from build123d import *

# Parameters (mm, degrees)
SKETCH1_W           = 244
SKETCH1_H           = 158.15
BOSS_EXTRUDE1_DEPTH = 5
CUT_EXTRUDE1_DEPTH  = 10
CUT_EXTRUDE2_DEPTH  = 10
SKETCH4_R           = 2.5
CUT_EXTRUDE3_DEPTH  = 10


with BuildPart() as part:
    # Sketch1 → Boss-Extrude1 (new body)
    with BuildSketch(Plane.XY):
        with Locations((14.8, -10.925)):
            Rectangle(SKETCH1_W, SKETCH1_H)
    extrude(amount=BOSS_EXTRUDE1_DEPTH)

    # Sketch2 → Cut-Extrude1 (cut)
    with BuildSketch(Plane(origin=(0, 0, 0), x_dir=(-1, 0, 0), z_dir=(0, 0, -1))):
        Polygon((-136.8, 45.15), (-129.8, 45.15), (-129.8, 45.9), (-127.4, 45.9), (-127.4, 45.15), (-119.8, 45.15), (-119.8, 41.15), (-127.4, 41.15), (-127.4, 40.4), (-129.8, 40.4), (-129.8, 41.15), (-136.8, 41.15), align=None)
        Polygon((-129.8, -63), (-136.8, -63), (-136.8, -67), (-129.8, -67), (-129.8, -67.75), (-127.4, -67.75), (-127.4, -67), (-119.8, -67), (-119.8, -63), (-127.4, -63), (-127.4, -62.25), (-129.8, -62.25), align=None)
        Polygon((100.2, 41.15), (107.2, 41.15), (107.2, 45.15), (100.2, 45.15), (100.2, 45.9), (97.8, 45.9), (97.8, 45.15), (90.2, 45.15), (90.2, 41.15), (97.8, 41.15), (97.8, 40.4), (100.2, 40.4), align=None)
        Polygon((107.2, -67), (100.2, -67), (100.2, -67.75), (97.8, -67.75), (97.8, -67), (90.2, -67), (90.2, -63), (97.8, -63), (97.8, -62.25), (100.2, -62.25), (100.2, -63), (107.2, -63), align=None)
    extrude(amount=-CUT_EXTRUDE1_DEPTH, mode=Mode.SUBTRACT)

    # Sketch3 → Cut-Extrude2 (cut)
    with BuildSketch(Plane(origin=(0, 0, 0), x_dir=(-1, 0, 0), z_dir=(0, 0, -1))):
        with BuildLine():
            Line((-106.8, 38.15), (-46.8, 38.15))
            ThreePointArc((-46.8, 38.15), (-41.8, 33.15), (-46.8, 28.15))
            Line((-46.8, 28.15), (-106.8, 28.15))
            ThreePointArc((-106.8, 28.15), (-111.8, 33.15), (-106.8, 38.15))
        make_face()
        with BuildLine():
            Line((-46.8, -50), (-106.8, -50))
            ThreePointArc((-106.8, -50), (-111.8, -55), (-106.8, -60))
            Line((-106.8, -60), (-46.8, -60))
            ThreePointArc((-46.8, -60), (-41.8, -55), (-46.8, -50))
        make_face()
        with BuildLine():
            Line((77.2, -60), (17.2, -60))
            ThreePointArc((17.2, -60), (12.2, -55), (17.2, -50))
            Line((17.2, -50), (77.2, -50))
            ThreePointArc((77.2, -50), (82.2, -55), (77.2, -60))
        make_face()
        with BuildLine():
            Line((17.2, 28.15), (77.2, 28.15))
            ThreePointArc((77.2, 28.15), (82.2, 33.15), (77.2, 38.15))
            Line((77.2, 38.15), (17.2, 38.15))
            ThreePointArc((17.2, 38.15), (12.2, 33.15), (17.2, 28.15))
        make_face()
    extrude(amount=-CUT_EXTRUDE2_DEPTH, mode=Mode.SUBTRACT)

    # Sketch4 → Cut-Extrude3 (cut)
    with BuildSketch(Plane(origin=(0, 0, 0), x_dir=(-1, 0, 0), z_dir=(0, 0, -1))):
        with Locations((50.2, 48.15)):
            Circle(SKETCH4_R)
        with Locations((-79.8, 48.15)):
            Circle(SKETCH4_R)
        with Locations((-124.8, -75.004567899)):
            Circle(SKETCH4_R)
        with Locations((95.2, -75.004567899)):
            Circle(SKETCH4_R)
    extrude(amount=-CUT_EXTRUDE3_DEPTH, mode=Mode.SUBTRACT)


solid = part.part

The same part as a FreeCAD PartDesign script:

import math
import FreeCAD as App
import Part
import Sketcher
Q = App.Units.Quantity

doc = App.newDocument("Part")
body = doc.addObject("PartDesign::Body", "Body")

sketch1 = body.newObject("Sketcher::SketchObject", "Sketch")
sketch1.AttachmentSupport = (doc.getObject("XY_Plane"), [""])
sketch1.MapMode = "FlatFace"
sketch1.addGeometry([
    Part.LineSegment(App.Vector(-107, 68, 0), App.Vector(-107, -90, 0)),
    Part.LineSegment(App.Vector(-107, -90, 0), App.Vector(137, -90, 0)),
    Part.LineSegment(App.Vector(137, -90, 0), App.Vector(137, 68, 0)),
    Part.LineSegment(App.Vector(137, 68, 0), App.Vector(-107, 68, 0)),
], False)
sketch1.addConstraint([
    Sketcher.Constraint("Coincident", 0, 2, 1, 1),
    Sketcher.Constraint("Coincident", 1, 2, 2, 1),
    Sketcher.Constraint("Coincident", 2, 2, 3, 1),
    Sketcher.Constraint("Coincident", 3, 2, 0, 1),
    Sketcher.Constraint("Vertical", 0),
    Sketcher.Constraint("Horizontal", 1),
    Sketcher.Constraint("Vertical", 2),
    Sketcher.Constraint("Horizontal", 3),
    Sketcher.Constraint("DistanceX", 1, 1, 1, 2, Q("244 mm")),
    Sketcher.Constraint("DistanceY", 0, 2, -1, 1, Q("90 mm")),
    Sketcher.Constraint("DistanceY", 0, 2, 0, 1, Q("158.15 mm")),
    Sketcher.Constraint("DistanceX", 0, 2, -1, 1, Q("107.2 mm")),
])
pad1 = body.newObject("PartDesign::Pad", "Pad")
pad1.Profile = sketch1
pad1.Length = 5

sketch2 = body.newObject("Sketcher::SketchObject", "Sketch001")
sketch2.AttachmentSupport = (doc.getObject("XY_Plane"), [""])
sketch2.MapMode = "FlatFace"
sketch2.addGeometry([
    Part.LineSegment(App.Vector(129.8, 45.1, 0), App.Vector(136.8, 45.1, 0)),
    Part.LineSegment(App.Vector(136.8, 45.1, 0), App.Vector(136.8, 41.1, 0)),
    Part.LineSegment(App.Vector(136.8, 41.1, 0), App.Vector(129.8, 41.1, 0)),
    Part.LineSegment(App.Vector(129.8, 41.1, 0), App.Vector(129.8, 40.4, 0)),
    Part.LineSegment(App.Vector(129.8, 40.4, 0), App.Vector(127.4, 40.4, 0)),
    Part.LineSegment(App.Vector(127.4, 40.4, 0), App.Vector(127.4, 41.1, 0)),
    Part.LineSegment(App.Vector(127.4, 41.1, 0), App.Vector(119.8, 41.1, 0)),
    Part.LineSegment(App.Vector(119.8, 41.1, 0), App.Vector(119.8, 45.1, 0)),
    Part.LineSegment(App.Vector(119.8, 45.1, 0), App.Vector(127.4, 45.1, 0)),
    Part.LineSegment(App.Vector(127.4, 45.1, 0), App.Vector(127.4, 45.9, 0)),
    Part.LineSegment(App.Vector(127.4, 45.9, 0), App.Vector(129.8, 45.9, 0)),
    Part.LineSegment(App.Vector(129.8, 45.9, 0), App.Vector(129.8, 45.1, 0)),
    Part.LineSegment(App.Vector(129.8, -63, 0), App.Vector(136.8, -63, 0)),
    Part.LineSegment(App.Vector(136.8, -63, 0), App.Vector(136.8, -67, 0)),
    Part.LineSegment(App.Vector(136.8, -67, 0), App.Vector(129.8, -67, 0)),
    Part.LineSegment(App.Vector(129.8, -67, 0), App.Vector(129.8, -67.8, 0)),
    Part.LineSegment(App.Vector(129.8, -67.8, 0), App.Vector(127.4, -67.8, 0)),
    Part.LineSegment(App.Vector(127.4, -67.8, 0), App.Vector(127.4, -67, 0)),
    Part.LineSegment(App.Vector(127.4, -67, 0), App.Vector(119.8, -67, 0)),
    Part.LineSegment(App.Vector(119.8, -67, 0), App.Vector(119.8, -63, 0)),
    Part.LineSegment(App.Vector(119.8, -63, 0), App.Vector(127.4, -63, 0)),
    Part.LineSegment(App.Vector(127.4, -63, 0), App.Vector(127.4, -62.2, 0)),
    Part.LineSegment(App.Vector(127.4, -62.2, 0), App.Vector(129.8, -62.2, 0)),
    Part.LineSegment(App.Vector(129.8, -62.2, 0), App.Vector(129.8, -63, 0)),
    Part.LineSegment(App.Vector(-100.2, 41.1, 0), App.Vector(-107.2, 41.1, 0)),
    Part.LineSegment(App.Vector(-107.2, 41.1, 0), App.Vector(-107.2, 45.1, 0)),
    Part.LineSegment(App.Vector(-107.2, 45.1, 0), App.Vector(-100.2, 45.1, 0)),
    Part.LineSegment(App.Vector(-100.2, 45.1, 0), App.Vector(-100.2, 45.9, 0)),
    Part.LineSegment(App.Vector(-100.2, 45.9, 0), App.Vector(-97.8, 45.9, 0)),
    Part.LineSegment(App.Vector(-97.8, 45.9, 0), App.Vector(-97.8, 45.1, 0)),
    Part.LineSegment(App.Vector(-97.8, 45.1, 0), App.Vector(-90.2, 45.1, 0)),
    Part.LineSegment(App.Vector(-90.2, 45.1, 0), App.Vector(-90.2, 41.1, 0)),
    Part.LineSegment(App.Vector(-90.2, 41.1, 0), App.Vector(-97.8, 41.1, 0)),
    Part.LineSegment(App.Vector(-97.8, 41.1, 0), App.Vector(-97.8, 40.4, 0)),
    Part.LineSegment(App.Vector(-97.8, 40.4, 0), App.Vector(-100.2, 40.4, 0)),
    Part.LineSegment(App.Vector(-100.2, 40.4, 0), App.Vector(-100.2, 41.1, 0)),
    Part.LineSegment(App.Vector(-100.2, -67, 0), App.Vector(-107.2, -67, 0)),
    Part.LineSegment(App.Vector(-107.2, -67, 0), App.Vector(-107.2, -63, 0)),
    Part.LineSegment(App.Vector(-107.2, -63, 0), App.Vector(-100.2, -63, 0)),
    Part.LineSegment(App.Vector(-100.2, -63, 0), App.Vector(-100.2, -62.2, 0)),
    Part.LineSegment(App.Vector(-100.2, -62.2, 0), App.Vector(-97.8, -62.2, 0)),
    Part.LineSegment(App.Vector(-97.8, -62.2, 0), App.Vector(-97.8, -63, 0)),
    Part.LineSegment(App.Vector(-97.8, -63, 0), App.Vector(-90.2, -63, 0)),
    Part.LineSegment(App.Vector(-90.2, -63, 0), App.Vector(-90.2, -67, 0)),
    Part.LineSegment(App.Vector(-90.2, -67, 0), App.Vector(-97.8, -67, 0)),
    Part.LineSegment(App.Vector(-97.8, -67, 0), App.Vector(-97.8, -67.8, 0)),
    Part.LineSegment(App.Vector(-97.8, -67.8, 0), App.Vector(-100.2, -67.8, 0)),
    Part.LineSegment(App.Vector(-100.2, -67.8, 0), App.Vector(-100.2, -67, 0)),
], False)
sketch2.addConstraint([
    Sketcher.Constraint("Coincident", 0, 2, 1, 1),
    Sketcher.Constraint("Coincident", 1, 2, 2, 1),
    Sketcher.Constraint("Coincident", 2, 2, 3, 1),
    Sketcher.Constraint("Coincident", 3, 2, 4, 1),
    Sketcher.Constraint("Coincident", 4, 2, 5, 1),
    Sketcher.Constraint("Coincident", 5, 2, 6, 1),
    Sketcher.Constraint("Coincident", 6, 2, 7, 1),
    Sketcher.Constraint("Coincident", 7, 2, 8, 1),
    Sketcher.Constraint("Coincident", 8, 2, 9, 1),
    Sketcher.Constraint("Coincident", 9, 2, 10, 1),
    Sketcher.Constraint("Coincident", 10, 2, 11, 1),
    Sketcher.Constraint("Coincident", 11, 2, 0, 1),
    Sketcher.Constraint("Coincident", 12, 2, 13, 1),
    Sketcher.Constraint("Coincident", 13, 2, 14, 1),
    Sketcher.Constraint("Coincident", 14, 2, 15, 1),
    Sketcher.Constraint("Coincident", 15, 2, 16, 1),
    Sketcher.Constraint("Coincident", 16, 2, 17, 1),
    Sketcher.Constraint("Coincident", 17, 2, 18, 1),
    Sketcher.Constraint("Coincident", 18, 2, 19, 1),
    Sketcher.Constraint("Coincident", 19, 2, 20, 1),
    Sketcher.Constraint("Coincident", 20, 2, 21, 1),
    Sketcher.Constraint("Coincident", 21, 2, 22, 1),
    Sketcher.Constraint("Coincident", 22, 2, 23, 1),
    Sketcher.Constraint("Coincident", 23, 2, 12, 1),
    Sketcher.Constraint("Coincident", 24, 2, 25, 1),
    Sketcher.Constraint("Coincident", 25, 2, 26, 1),
    Sketcher.Constraint("Coincident", 26, 2, 27, 1),
    Sketcher.Constraint("Coincident", 27, 2, 28, 1),
    Sketcher.Constraint("Coincident", 28, 2, 29, 1),
    Sketcher.Constraint("Coincident", 29, 2, 30, 1),
    Sketcher.Constraint("Coincident", 30, 2, 31, 1),
    Sketcher.Constraint("Coincident", 31, 2, 32, 1),
    Sketcher.Constraint("Coincident", 32, 2, 33, 1),
    Sketcher.Constraint("Coincident", 33, 2, 34, 1),
    Sketcher.Constraint("Coincident", 34, 2, 35, 1),
    Sketcher.Constraint("Coincident", 35, 2, 24, 1),
    Sketcher.Constraint("Coincident", 36, 2, 37, 1),
    Sketcher.Constraint("Coincident", 37, 2, 38, 1),
    Sketcher.Constraint("Coincident", 38, 2, 39, 1),
    Sketcher.Constraint("Coincident", 39, 2, 40, 1),
    Sketcher.Constraint("Coincident", 40, 2, 41, 1),
    Sketcher.Constraint("Coincident", 41, 2, 42, 1),
    Sketcher.Constraint("Coincident", 42, 2, 43, 1),
    Sketcher.Constraint("Coincident", 43, 2, 44, 1),
    Sketcher.Constraint("Coincident", 44, 2, 45, 1),
    Sketcher.Constraint("Coincident", 45, 2, 46, 1),
    Sketcher.Constraint("Coincident", 46, 2, 47, 1),
    Sketcher.Constraint("Coincident", 47, 2, 36, 1),
    Sketcher.Constraint("Horizontal", 0),
    Sketcher.Constraint("Vertical", 1),
    Sketcher.Constraint("Horizontal", 2),
    Sketcher.Constraint("Vertical", 3),
    Sketcher.Constraint("Horizontal", 4),
    Sketcher.Constraint("Vertical", 5),
    Sketcher.Constraint("Horizontal", 6),
    Sketcher.Constraint("Vertical", 7),
    Sketcher.Constraint("Horizontal", 8),
    Sketcher.Constraint("Vertical", 9),
    Sketcher.Constraint("Horizontal", 10),
    Sketcher.Constraint("Vertical", 11),
    Sketcher.Constraint("Horizontal", 12),
    Sketcher.Constraint("Vertical", 13),
    Sketcher.Constraint("Horizontal", 14),
    Sketcher.Constraint("Vertical", 15),
    Sketcher.Constraint("Horizontal", 16),
    Sketcher.Constraint("Vertical", 17),
    Sketcher.Constraint("Horizontal", 18),
    Sketcher.Constraint("Vertical", 19),
    Sketcher.Constraint("Horizontal", 20),
    Sketcher.Constraint("Vertical", 21),
    Sketcher.Constraint("Horizontal", 22),
    Sketcher.Constraint("Vertical", 23),
    Sketcher.Constraint("Horizontal", 24),
    Sketcher.Constraint("Vertical", 25),
    Sketcher.Constraint("Horizontal", 26),
    Sketcher.Constraint("Vertical", 27),
    Sketcher.Constraint("Horizontal", 28),
    Sketcher.Constraint("Vertical", 29),
    Sketcher.Constraint("Horizontal", 30),
    Sketcher.Constraint("Vertical", 31),
    Sketcher.Constraint("Horizontal", 32),
    Sketcher.Constraint("Vertical", 33),
    Sketcher.Constraint("Horizontal", 34),
    Sketcher.Constraint("Vertical", 35),
    Sketcher.Constraint("Horizontal", 36),
    Sketcher.Constraint("Vertical", 37),
    Sketcher.Constraint("Horizontal", 38),
    Sketcher.Constraint("Vertical", 39),
    Sketcher.Constraint("Horizontal", 40),
    Sketcher.Constraint("Vertical", 41),
    Sketcher.Constraint("Horizontal", 42),
    Sketcher.Constraint("Vertical", 43),
    Sketcher.Constraint("Horizontal", 44),
    Sketcher.Constraint("Vertical", 45),
    Sketcher.Constraint("Horizontal", 46),
    Sketcher.Constraint("Vertical", 47),
    Sketcher.Constraint("Horizontal", 2, 2, 5, 2),
    Sketcher.Constraint("Horizontal", 0, 2, 7, 2),
    Sketcher.Constraint("Horizontal", 14, 2, 17, 2),
    Sketcher.Constraint("Horizontal", 12, 2, 19, 2),
    Sketcher.Constraint("Horizontal", 6, 2, 24, 2),
    Sketcher.Constraint("Horizontal", 11, 2, 25, 2),
    Sketcher.Constraint("Horizontal", 10, 2, 27, 2),
    Sketcher.Constraint("Horizontal", 26, 2, 29, 2),
    Sketcher.Constraint("Horizontal", 24, 2, 31, 2),
    Sketcher.Constraint("Horizontal", 4, 2, 33, 2),
    Sketcher.Constraint("Horizontal", 18, 2, 36, 2),
    Sketcher.Constraint("Horizontal", 23, 2, 37, 2),
    Sketcher.Constraint("Horizontal", 22, 2, 39, 2),
    Sketcher.Constraint("Horizontal", 38, 2, 41, 2),
    Sketcher.Constraint("Horizontal", 36, 2, 43, 2),
    Sketcher.Constraint("Horizontal", 16, 2, 45, 2),
    Sketcher.Constraint("Vertical", 5, 2, 8, 2),
    Sketcher.Constraint("Vertical", 3, 2, 10, 2),
    Sketcher.Constraint("Vertical", 1, 2, 12, 2),
    Sketcher.Constraint("Vertical", 11, 2, 14, 2),
    Sketcher.Constraint("Vertical", 9, 2, 16, 2),
    Sketcher.Constraint("Vertical", 7, 2, 18, 2),
    Sketcher.Constraint("Vertical", 17, 2, 20, 2),
    Sketcher.Constraint("Vertical", 15, 2, 22, 2),
    Sketcher.Constraint("Vertical", 29, 2, 32, 2),
    Sketcher.Constraint("Vertical", 27, 2, 34, 2),
    Sketcher.Constraint("Vertical", 25, 2, 36, 2),
    Sketcher.Constraint("Vertical", 35, 2, 38, 2),
    Sketcher.Constraint("Vertical", 33, 2, 40, 2),
    Sketcher.Constraint("Vertical", 31, 2, 42, 2),
    Sketcher.Constraint("Vertical", 41, 2, 44, 2),
    Sketcher.Constraint("Vertical", 39, 2, 46, 2),
    Sketcher.Constraint("Equal", 14, 24),
    Sketcher.Constraint("Equal", 22, 28),
    Sketcher.Constraint("Equal", 20, 30),
    Sketcher.Constraint("Equal", 5, 9),
    Sketcher.Constraint("Equal", 7, 13),
    Sketcher.Constraint("Equal", 11, 15),
    Sketcher.Constraint("Equal", 17, 21),
    Sketcher.Constraint("DistanceX", 0, 1, 0, 2, Q("7 mm")),
    Sketcher.Constraint("DistanceY", 1, 2, 1, 1, Q("4 mm")),
    Sketcher.Constraint("DistanceX", 4, 2, 4, 1, Q("2.4 mm")),
    Sketcher.Constraint("DistanceX", 6, 2, 6, 1, Q("7.6 mm")),
    Sketcher.Constraint("DistanceY", 12, 2, -1, 1, Q("63 mm")),
    Sketcher.Constraint("DistanceX", 24, 2, 6, 2, Q("227 mm")),
    Sketcher.Constraint("DistanceY", 3, 2, 3, 1, Q("0.75 mm")),
    Sketcher.Constraint("DistanceX", -1, 1, 0, 2, Q("136.8 mm")),
    Sketcher.Constraint("DistanceY", -1, 1, 3, 2, Q("40.4 mm")),
])
pocket1 = body.newObject("PartDesign::Pocket", "Pocket")
pocket1.Profile = sketch2
pocket1.Length = 10
pocket1.Reversed = True

sketch3 = body.newObject("Sketcher::SketchObject", "Sketch002")
sketch3.AttachmentSupport = (doc.getObject("XY_Plane"), [""])
sketch3.MapMode = "FlatFace"
sketch3.addGeometry([
    Part.LineSegment(App.Vector(47, 38, 0), App.Vector(107, 38, 0)),
    Part.ArcOfCircle(Part.Circle(App.Vector(107, 33, 0), App.Vector(0, 0, 1), 5), math.radians(-90), math.radians(90)),
    Part.LineSegment(App.Vector(107, 28, 0), App.Vector(47, 28, 0)),
    Part.ArcOfCircle(Part.Circle(App.Vector(47, 33, 0), App.Vector(0, 0, 1), 5), math.radians(90), math.radians(270)),
    Part.LineSegment(App.Vector(47, -50, 0), App.Vector(107, -50, 0)),
    Part.ArcOfCircle(Part.Circle(App.Vector(107, -55, 0), App.Vector(0, 0, 1), 5), math.radians(-90), math.radians(90)),
    Part.LineSegment(App.Vector(107, -60, 0), App.Vector(47, -60, 0)),
    Part.ArcOfCircle(Part.Circle(App.Vector(47, -55, 0), App.Vector(0, 0, 1), 5), math.radians(90), math.radians(270)),
    Part.LineSegment(App.Vector(-17, -60, 0), App.Vector(-77, -60, 0)),
    Part.ArcOfCircle(Part.Circle(App.Vector(-77, -55, 0), App.Vector(0, 0, 1), 5), math.radians(90), math.radians(270)),
    Part.LineSegment(App.Vector(-77, -50, 0), App.Vector(-17, -50, 0)),
    Part.ArcOfCircle(Part.Circle(App.Vector(-17, -55, 0), App.Vector(0, 0, 1), 5), math.radians(-90), math.radians(90)),
    Part.LineSegment(App.Vector(-17, 28, 0), App.Vector(-77, 28, 0)),
    Part.ArcOfCircle(Part.Circle(App.Vector(-77, 33, 0), App.Vector(0, 0, 1), 5), math.radians(90), math.radians(270)),
    Part.LineSegment(App.Vector(-77, 38, 0), App.Vector(-17, 38, 0)),
    Part.ArcOfCircle(Part.Circle(App.Vector(-17, 33, 0), App.Vector(0, 0, 1), 5), math.radians(-90), math.radians(90)),
], False)
sketch3.addConstraint([
    Sketcher.Constraint("Tangent", 0, 2, 1, 2),
    Sketcher.Constraint("Tangent", 1, 1, 2, 1),
    Sketcher.Constraint("Tangent", 2, 2, 3, 2),
    Sketcher.Constraint("Tangent", 3, 1, 0, 1),
    Sketcher.Constraint("Tangent", 4, 2, 5, 2),
    Sketcher.Constraint("Tangent", 5, 1, 6, 1),
    Sketcher.Constraint("Tangent", 6, 2, 7, 2),
    Sketcher.Constraint("Tangent", 7, 1, 4, 1),
    Sketcher.Constraint("Tangent", 8, 2, 9, 2),
    Sketcher.Constraint("Tangent", 9, 1, 10, 1),
    Sketcher.Constraint("Tangent", 10, 2, 11, 2),
    Sketcher.Constraint("Tangent", 11, 1, 8, 1),
    Sketcher.Constraint("Tangent", 12, 2, 13, 2),
    Sketcher.Constraint("Tangent", 13, 1, 14, 1),
    Sketcher.Constraint("Tangent", 14, 2, 15, 2),
    Sketcher.Constraint("Tangent", 15, 1, 12, 1),
    Sketcher.Constraint("Horizontal", 0),
    Sketcher.Constraint("Horizontal", 2),
    Sketcher.Constraint("Horizontal", 4),
    Sketcher.Constraint("Horizontal", 6),
    Sketcher.Constraint("Horizontal", 8),
    Sketcher.Constraint("Horizontal", 10),
    Sketcher.Constraint("Horizontal", 12),
    Sketcher.Constraint("Horizontal", 14),
    Sketcher.Constraint("Equal", 3, 5),
    Sketcher.Constraint("Equal", 7, 9),
    Sketcher.Constraint("Equal", 11, 13),
    Sketcher.Constraint("Horizontal", 7, 3, 9, 3),
    Sketcher.Constraint("Horizontal", 3, 3, 13, 3),
    Sketcher.Constraint("Vertical", 1, 3, 5, 3),
    Sketcher.Constraint("Vertical", 3, 3, 7, 3),
    Sketcher.Constraint("Vertical", 9, 3, 13, 3),
    Sketcher.Constraint("Vertical", 11, 3, 15, 3),
    Sketcher.Constraint("Equal", 6, 8),
    Sketcher.Constraint("Radius", 1, Q("5 mm")),
    Sketcher.Constraint("DistanceX", 0, 1, 0, 2, Q("60 mm")),
    Sketcher.Constraint("DistanceY", 5, 3, -1, 1, Q("55 mm")),
    Sketcher.Constraint("DistanceX", 9, 3, 7, 3, Q("124 mm")),
    Sketcher.Constraint("DistanceX", -1, 1, 1, 3, Q("106.8 mm")),
    Sketcher.Constraint("DistanceY", -1, 1, 1, 3, Q("33.15 mm")),
])
pocket2 = body.newObject("PartDesign::Pocket", "Pocket001")
pocket2.Profile = sketch3
pocket2.Length = 10
pocket2.Reversed = True

sketch4 = body.newObject("Sketcher::SketchObject", "Sketch003")
sketch4.AttachmentSupport = (doc.getObject("XY_Plane"), [""])
sketch4.MapMode = "FlatFace"
sketch4.addGeometry([
    Part.Circle(App.Vector(-50.2, 48.1, 0), App.Vector(0, 0, 1), 2.5),
    Part.Circle(App.Vector(79.8, 48.1, 0), App.Vector(0, 0, 1), 2.5),
    Part.Circle(App.Vector(124.8, -75, 0), App.Vector(0, 0, 1), 2.5),
    Part.Circle(App.Vector(-95.2, -75, 0), App.Vector(0, 0, 1), 2.5),
], False)
sketch4.addConstraint([
    Sketcher.Constraint("Equal", 0, 1),
    Sketcher.Constraint("Equal", 1, 2),
    Sketcher.Constraint("Equal", 2, 3),
    Sketcher.Constraint("Horizontal", 0, 3, 1, 3),
    Sketcher.Constraint("Horizontal", 2, 3, 3, 3),
    Sketcher.Constraint("Diameter", 0, Q("5 mm")),
    Sketcher.Constraint("DistanceX", 0, 3, 1, 3, Q("130 mm")),
    Sketcher.Constraint("DistanceX", 1, 3, 2, 3, Q("45 mm")),
    Sketcher.Constraint("DistanceX", 3, 3, 0, 3, Q("45 mm")),
    Sketcher.Constraint("DistanceX", 0, 3, -1, 1, Q("50.2 mm")),
    Sketcher.Constraint("DistanceY", -1, 1, 0, 3, Q("48.15 mm")),
    Sketcher.Constraint("DistanceY", 2, 3, -1, 1, Q("75.004568 mm")),
])
pocket3 = body.newObject("PartDesign::Pocket", "Pocket002")
pocket3.Profile = sketch4
pocket3.Length = 10
pocket3.Reversed = True

doc.recompute()
